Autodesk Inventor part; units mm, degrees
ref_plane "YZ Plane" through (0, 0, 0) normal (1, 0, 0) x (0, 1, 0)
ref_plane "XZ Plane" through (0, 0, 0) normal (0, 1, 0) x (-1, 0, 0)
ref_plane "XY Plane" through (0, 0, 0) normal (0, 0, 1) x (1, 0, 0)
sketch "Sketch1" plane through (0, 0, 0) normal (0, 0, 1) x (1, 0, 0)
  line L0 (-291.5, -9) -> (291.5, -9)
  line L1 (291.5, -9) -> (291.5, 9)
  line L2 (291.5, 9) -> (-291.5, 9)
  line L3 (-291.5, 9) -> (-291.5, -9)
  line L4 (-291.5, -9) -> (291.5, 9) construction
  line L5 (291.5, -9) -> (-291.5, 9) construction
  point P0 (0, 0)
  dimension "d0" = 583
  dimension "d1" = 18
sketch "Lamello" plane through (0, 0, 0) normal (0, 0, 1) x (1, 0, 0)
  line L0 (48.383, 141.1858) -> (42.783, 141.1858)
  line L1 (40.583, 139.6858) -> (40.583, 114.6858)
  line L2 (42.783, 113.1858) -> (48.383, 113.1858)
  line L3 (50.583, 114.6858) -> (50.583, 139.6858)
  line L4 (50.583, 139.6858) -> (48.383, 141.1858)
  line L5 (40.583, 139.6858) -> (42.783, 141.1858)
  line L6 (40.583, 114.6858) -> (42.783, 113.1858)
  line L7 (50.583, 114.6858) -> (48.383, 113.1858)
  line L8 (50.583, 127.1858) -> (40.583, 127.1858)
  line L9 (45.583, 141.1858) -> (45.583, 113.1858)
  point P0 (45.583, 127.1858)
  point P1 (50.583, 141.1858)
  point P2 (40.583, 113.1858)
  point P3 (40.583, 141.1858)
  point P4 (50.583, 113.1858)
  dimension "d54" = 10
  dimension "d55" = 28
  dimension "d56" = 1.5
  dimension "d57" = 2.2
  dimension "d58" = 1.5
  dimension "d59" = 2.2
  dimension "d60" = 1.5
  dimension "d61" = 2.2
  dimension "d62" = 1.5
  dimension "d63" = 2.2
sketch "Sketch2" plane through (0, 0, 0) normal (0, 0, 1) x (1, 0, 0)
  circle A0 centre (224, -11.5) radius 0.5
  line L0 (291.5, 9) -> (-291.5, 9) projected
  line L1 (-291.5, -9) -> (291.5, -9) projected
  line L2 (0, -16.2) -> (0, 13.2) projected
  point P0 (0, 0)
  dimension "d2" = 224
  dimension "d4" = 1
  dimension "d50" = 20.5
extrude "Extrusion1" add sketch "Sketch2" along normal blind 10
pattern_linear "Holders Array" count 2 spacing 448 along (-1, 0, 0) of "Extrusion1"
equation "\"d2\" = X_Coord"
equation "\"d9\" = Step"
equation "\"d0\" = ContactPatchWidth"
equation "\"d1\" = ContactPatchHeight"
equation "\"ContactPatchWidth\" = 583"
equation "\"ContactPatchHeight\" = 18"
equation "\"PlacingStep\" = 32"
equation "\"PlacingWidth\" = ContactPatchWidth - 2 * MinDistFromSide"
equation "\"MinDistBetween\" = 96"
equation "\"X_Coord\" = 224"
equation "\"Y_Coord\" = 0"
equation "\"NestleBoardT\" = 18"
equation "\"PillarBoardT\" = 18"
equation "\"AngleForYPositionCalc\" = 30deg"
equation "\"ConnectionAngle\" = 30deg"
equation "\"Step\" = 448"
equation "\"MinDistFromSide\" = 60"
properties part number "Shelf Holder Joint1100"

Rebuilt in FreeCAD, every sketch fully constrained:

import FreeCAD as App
import Part
import Sketcher
from FreeCAD import Vector

doc = App.newDocument("Part")
body = doc.addObject("PartDesign::Body", "Body")
body.AllowCompound = True

sketch1 = doc.addObject("Sketcher::SketchObject", "Sketch")
body.addObject(sketch1)
sketch1.AttachmentSupport = (doc.XY_Plane, [""])
sketch1.MapMode = "FlatFace"
sketch1.addGeometry(Part.Circle(Vector(224, -11.5, 0), Vector(0, 0, 1), 0.5), False)
sketch1.addConstraint(Sketcher.Constraint("Diameter", 0, 1.0))
sketch1.addConstraint(Sketcher.Constraint("DistanceX", -1, 1, 0, 3, 224.0))
sketch1.addConstraint(Sketcher.Constraint("DistanceY", 0, 3, -1, 1, 11.5))
pad1 = doc.addObject("PartDesign::Pad", "Pad")
body.addObject(pad1)
pad1.Profile = sketch1
pad1.Length = 10
doc.recompute()

linearpattern = doc.addObject("PartDesign::LinearPattern", "LinearPattern")
body.addObject(linearpattern)
linearpattern.Originals = [pad1]
linearpattern.Direction = (doc.X_Axis, [""])
linearpattern.Mode = "offset"
linearpattern.Offset = 448
linearpattern.Occurrences = 2
linearpattern.Reversed = True
body.Tip = linearpattern

doc.recompute()
